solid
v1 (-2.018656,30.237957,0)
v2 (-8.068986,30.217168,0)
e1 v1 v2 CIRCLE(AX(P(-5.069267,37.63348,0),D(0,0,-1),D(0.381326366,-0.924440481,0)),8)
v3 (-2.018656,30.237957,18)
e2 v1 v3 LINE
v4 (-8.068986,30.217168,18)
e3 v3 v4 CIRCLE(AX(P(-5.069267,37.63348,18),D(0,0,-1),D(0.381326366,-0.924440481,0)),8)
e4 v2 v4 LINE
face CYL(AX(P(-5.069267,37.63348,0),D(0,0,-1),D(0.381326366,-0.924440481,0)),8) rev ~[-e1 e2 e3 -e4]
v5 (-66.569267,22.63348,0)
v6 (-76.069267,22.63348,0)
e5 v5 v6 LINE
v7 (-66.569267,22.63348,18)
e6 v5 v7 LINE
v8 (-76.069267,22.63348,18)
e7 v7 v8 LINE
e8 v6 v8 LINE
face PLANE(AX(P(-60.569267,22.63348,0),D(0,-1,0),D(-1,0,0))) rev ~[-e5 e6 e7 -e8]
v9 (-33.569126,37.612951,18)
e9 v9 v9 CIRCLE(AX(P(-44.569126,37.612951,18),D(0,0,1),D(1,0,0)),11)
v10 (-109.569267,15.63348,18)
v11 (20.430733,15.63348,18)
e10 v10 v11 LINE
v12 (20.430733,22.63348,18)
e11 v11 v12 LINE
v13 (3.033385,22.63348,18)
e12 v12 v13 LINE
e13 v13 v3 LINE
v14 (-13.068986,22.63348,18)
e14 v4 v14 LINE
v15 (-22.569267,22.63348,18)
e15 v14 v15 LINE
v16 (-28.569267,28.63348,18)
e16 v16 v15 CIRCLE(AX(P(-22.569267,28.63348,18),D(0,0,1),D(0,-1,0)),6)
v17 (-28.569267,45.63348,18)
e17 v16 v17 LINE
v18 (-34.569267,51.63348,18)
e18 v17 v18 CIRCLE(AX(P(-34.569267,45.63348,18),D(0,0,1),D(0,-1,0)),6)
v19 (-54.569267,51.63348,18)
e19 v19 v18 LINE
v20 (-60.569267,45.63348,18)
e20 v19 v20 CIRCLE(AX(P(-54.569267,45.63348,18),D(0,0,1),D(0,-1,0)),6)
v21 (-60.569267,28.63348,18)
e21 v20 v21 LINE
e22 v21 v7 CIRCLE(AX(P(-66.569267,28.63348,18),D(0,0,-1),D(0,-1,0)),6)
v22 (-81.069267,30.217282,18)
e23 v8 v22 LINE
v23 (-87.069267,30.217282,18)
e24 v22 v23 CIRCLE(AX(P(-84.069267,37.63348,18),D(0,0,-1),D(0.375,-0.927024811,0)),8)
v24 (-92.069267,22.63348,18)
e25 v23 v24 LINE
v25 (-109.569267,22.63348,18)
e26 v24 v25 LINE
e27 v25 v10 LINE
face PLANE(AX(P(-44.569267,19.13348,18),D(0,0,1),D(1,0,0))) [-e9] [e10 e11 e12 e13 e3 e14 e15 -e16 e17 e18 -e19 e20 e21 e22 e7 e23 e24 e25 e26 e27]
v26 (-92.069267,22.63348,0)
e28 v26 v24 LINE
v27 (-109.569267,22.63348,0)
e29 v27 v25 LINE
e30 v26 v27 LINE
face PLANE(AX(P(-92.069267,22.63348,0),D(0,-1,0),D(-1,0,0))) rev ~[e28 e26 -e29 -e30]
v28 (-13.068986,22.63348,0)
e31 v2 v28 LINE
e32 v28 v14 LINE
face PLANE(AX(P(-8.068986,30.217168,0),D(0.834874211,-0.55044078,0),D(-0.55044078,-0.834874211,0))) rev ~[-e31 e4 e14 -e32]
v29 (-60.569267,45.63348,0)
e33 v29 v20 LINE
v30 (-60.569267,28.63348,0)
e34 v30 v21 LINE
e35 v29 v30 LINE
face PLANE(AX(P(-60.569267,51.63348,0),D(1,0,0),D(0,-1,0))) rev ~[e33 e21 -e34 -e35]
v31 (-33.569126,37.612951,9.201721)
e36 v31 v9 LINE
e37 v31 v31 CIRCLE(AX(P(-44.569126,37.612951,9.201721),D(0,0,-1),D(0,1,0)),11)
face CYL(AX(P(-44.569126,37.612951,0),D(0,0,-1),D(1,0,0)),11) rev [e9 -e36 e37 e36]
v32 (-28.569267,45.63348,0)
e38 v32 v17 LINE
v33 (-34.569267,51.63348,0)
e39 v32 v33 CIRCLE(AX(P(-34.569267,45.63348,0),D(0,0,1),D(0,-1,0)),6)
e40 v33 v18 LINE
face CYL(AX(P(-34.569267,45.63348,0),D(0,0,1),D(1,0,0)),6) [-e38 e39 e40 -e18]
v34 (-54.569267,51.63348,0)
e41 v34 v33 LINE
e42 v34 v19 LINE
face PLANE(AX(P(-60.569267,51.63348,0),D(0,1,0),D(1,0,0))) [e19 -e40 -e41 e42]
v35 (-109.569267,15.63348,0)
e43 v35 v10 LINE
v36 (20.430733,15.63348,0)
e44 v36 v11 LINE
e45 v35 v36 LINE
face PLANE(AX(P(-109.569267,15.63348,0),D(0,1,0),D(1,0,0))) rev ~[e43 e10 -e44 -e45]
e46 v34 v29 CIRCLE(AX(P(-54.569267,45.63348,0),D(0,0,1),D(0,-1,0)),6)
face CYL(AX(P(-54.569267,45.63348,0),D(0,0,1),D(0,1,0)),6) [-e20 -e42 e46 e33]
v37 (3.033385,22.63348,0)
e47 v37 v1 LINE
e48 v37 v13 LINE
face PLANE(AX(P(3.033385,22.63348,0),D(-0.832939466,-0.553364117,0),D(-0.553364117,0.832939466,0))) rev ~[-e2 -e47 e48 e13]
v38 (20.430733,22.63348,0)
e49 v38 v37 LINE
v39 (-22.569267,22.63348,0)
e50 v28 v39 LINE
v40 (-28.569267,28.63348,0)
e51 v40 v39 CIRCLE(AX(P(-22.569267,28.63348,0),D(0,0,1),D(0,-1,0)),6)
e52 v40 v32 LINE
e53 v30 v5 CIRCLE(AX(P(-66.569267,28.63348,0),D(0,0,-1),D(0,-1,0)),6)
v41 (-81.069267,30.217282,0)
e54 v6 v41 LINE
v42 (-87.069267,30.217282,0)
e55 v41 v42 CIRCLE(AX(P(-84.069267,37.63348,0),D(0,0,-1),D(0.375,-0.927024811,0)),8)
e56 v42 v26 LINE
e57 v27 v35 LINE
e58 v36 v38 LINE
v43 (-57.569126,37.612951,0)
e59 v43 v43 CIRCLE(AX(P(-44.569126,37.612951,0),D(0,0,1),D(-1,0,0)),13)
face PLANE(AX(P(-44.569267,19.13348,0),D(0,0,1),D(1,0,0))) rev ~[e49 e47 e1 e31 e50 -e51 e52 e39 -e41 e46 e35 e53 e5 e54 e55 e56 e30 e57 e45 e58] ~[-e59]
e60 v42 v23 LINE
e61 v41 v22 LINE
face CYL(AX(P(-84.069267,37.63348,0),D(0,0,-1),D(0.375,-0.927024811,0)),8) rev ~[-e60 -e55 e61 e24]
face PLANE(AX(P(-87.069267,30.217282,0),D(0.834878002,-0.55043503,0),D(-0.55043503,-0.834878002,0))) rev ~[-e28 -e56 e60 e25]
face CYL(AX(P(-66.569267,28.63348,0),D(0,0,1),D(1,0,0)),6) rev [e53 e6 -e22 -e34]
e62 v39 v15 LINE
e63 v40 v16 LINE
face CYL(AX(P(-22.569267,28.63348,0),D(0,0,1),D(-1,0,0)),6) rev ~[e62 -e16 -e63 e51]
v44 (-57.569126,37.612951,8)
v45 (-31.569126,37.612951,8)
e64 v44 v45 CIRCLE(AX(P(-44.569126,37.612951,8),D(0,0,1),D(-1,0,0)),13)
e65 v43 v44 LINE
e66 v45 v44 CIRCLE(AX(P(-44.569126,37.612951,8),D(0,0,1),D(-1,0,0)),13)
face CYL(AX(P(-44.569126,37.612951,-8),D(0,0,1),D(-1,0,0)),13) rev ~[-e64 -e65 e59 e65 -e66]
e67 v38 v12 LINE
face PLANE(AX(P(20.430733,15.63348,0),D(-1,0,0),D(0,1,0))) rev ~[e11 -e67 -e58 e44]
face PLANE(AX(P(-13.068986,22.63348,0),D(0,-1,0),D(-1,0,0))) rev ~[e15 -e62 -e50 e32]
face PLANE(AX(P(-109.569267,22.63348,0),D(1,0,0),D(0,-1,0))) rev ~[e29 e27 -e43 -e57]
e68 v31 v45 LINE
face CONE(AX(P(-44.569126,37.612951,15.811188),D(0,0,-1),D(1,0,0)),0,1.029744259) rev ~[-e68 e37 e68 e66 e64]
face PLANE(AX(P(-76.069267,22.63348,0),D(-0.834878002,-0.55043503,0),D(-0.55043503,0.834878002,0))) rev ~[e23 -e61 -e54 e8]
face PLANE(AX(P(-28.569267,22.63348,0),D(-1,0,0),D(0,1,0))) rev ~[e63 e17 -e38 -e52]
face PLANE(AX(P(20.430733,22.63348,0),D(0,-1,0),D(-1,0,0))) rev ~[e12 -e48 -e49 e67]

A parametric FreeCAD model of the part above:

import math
import FreeCAD as App
import Part
import Sketcher


def edges_at(feature, points):
    """Names of the edges that pass closest to the given points."""
    edges = feature.Shape.Edges
    near = lambda p: min(range(len(edges)), key=lambda i: edges[i].distToShape(Part.Vertex(*p))[0])
    return sorted({f"Edge{near(p) + 1}" for p in points})

doc = App.newDocument("Part")
body = doc.addObject("PartDesign::Body", "Body")

sketch1 = body.newObject("Sketcher::SketchObject", "Sketch")
sketch1.AttachmentSupport = (doc.getObject("XY_Plane"), [""])
sketch1.MapMode = "FlatFace"
sketch1.addGeometry([
    Part.LineSegment(App.Vector(-28.569267, 22.63348, 0), App.Vector(-28.569267, 51.63348, 0)),
    Part.LineSegment(App.Vector(-28.569267, 51.63348, 0), App.Vector(-60.569267, 51.63348, 0)),
    Part.LineSegment(App.Vector(-60.569267, 51.63348, 0), App.Vector(-60.569267, 22.63348, 0)),
    Part.LineSegment(App.Vector(-60.569267, 22.63348, 0), App.Vector(-76.069267, 22.63348, 0)),
    Part.LineSegment(App.Vector(-76.069267, 22.63348, 0), App.Vector(-81.069267, 30.217282, 0)),
    Part.ArcOfCircle(Part.Circle(App.Vector(-84.069267, 37.63348, 0), App.Vector(0, 0, 1), 8), math.radians(-112.024313), math.radians(-67.975687)),
    Part.LineSegment(App.Vector(-87.069267, 30.217282, 0), App.Vector(-92.069267, 22.63348, 0)),
    Part.LineSegment(App.Vector(-92.069267, 22.63348, 0), App.Vector(-109.569267, 22.63348, 0)),
    Part.LineSegment(App.Vector(-109.569267, 22.63348, 0), App.Vector(-109.569267, 15.63348, 0)),
    Part.LineSegment(App.Vector(-109.569267, 15.63348, 0), App.Vector(20.430733, 15.63348, 0)),
    Part.LineSegment(App.Vector(20.430733, 15.63348, 0), App.Vector(20.430733, 22.63348, 0)),
    Part.LineSegment(App.Vector(20.430733, 22.63348, 0), App.Vector(3.033385, 22.63348, 0)),
    Part.LineSegment(App.Vector(3.033385, 22.63348, 0), App.Vector(-2.018656, 30.237957, 0)),
    Part.ArcOfCircle(Part.Circle(App.Vector(-5.069267, 37.63348, 0), App.Vector(0, 0, 1), 8), math.radians(-112.022142), math.radians(-67.584135)),
    Part.LineSegment(App.Vector(-8.068986, 30.217168, 0), App.Vector(-13.068986, 22.63348, 0)),
    Part.LineSegment(App.Vector(-13.068986, 22.63348, 0), App.Vector(-28.569267, 22.63348, 0)),
    Part.Circle(App.Vector(-44.569126, 37.612951, 0), App.Vector(0, 0, 1), 11),
], False)
sketch1.addConstraint([
    Sketcher.Constraint("Coincident", 0, 2, 1, 1),
    Sketcher.Constraint("Coincident", 1, 2, 2, 1),
    Sketcher.Constraint("Coincident", 2, 2, 3, 1),
    Sketcher.Constraint("Coincident", 3, 2, 4, 1),
    Sketcher.Constraint("Coincident", 4, 2, 5, 2),
    Sketcher.Constraint("Coincident", 5, 1, 6, 1),
    Sketcher.Constraint("Coincident", 6, 2, 7, 1),
    Sketcher.Constraint("Coincident", 7, 2, 8, 1),
    Sketcher.Constraint("Coincident", 8, 2, 9, 1),
    Sketcher.Constraint("Coincident", 9, 2, 10, 1),
    Sketcher.Constraint("Coincident", 10, 2, 11, 1),
    Sketcher.Constraint("Coincident", 11, 2, 12, 1),
    Sketcher.Constraint("Coincident", 12, 2, 13, 2),
    Sketcher.Constraint("Coincident", 13, 1, 14, 1),
    Sketcher.Constraint("Coincident", 14, 2, 15, 1),
    Sketcher.Constraint("Coincident", 15, 2, 0, 1),
    Sketcher.Constraint("Vertical", 0),
    Sketcher.Constraint("Horizontal", 1),
    Sketcher.Constraint("Vertical", 2),
    Sketcher.Constraint("Horizontal", 3),
    Sketcher.Constraint("Horizontal", 7),
    Sketcher.Constraint("Vertical", 8),
    Sketcher.Constraint("Horizontal", 9),
    Sketcher.Constraint("Vertical", 10),
    Sketcher.Constraint("Horizontal", 11),
    Sketcher.Constraint("Horizontal", 15),
    Sketcher.Constraint("Equal", 5, 13),
    Sketcher.Constraint("Horizontal", 5, 3, 13, 3),
    Sketcher.Constraint("Horizontal", 4, 2, 5, 1),
    Sketcher.Constraint("Horizontal", 3, 2, 6, 2),
    Sketcher.Constraint("Horizontal", 7, 2, 10, 2),
    Sketcher.Constraint("Horizontal", 11, 2, 14, 2),
    Sketcher.Constraint("Equal", 4, 6),
    Sketcher.Constraint("Diameter", 16, 22.0),
    Sketcher.Constraint("Radius", 5, 8.0),
    Sketcher.Constraint("DistanceX", 1, 2, 1, 1, 32.0),
    Sketcher.Constraint("DistanceX", 9, 1, 9, 2, 130.0),
    Sketcher.Constraint("DistanceY", 0, 1, 0, 2, 29.0),
    Sketcher.Constraint("DistanceY", 8, 2, 8, 1, 7.0),
    Sketcher.Constraint("DistanceX", 3, 2, 3, 1, 15.5),
    Sketcher.Constraint("DistanceX", 7, 2, 7, 1, 17.5),
    Sketcher.Constraint("DistanceX", 5, 3, 13, 3, 79.0),
    Sketcher.Constraint("DistanceY", 13, 3, 0, 2, 14.0),
    Sketcher.Constraint("DistanceX", 5, 3, 3, 2, 8.0),
    Sketcher.Constraint("DistanceX", 5, 3, 4, 2, 3.0),
    Sketcher.Constraint("DistanceX", 14, 2, 13, 1, 5.0),
    Sketcher.Constraint("DistanceX", 11, 2, 11, 1, 17.397348),
    Sketcher.Constraint("DistanceX", 15, 2, 15, 1, 15.500281),
    Sketcher.Constraint("DistanceY", -1, 1, 5, 3, 37.63348),
    Sketcher.Constraint("DistanceY", -1, 1, 16, 3, 37.612951),
    Sketcher.Constraint("DistanceX", 16, 3, 13, 3, 39.49986),
    Sketcher.Constraint("DistanceX", 13, 3, 12, 2, 3.050611),
    Sketcher.Constraint("DistanceX", 5, 3, -1, 1, 84.069267),
])
pad1 = body.newObject("PartDesign::Pad", "Pad")
pad1.Profile = sketch1
pad1.Length = 18

sketch2 = body.newObject("Sketcher::SketchObject", "Sketch001")
sketch2.AttachmentSupport = (doc.getObject("XY_Plane"), [""])
sketch2.MapMode = "FlatFace"
sketch2.addGeometry(Part.Circle(App.Vector(-44.569126, 37.612951, 0), App.Vector(0, 0, 1), 13), False)
sketch2.addConstraint([
    Sketcher.Constraint("Diameter", 0, 26.0),
    Sketcher.Constraint("DistanceY", -1, 1, 0, 3, 37.612951),
    Sketcher.Constraint("DistanceX", 0, 3, -1, 1, 44.569126),
])
doc.recompute()
hole = body.newObject("PartDesign::Hole", "Hole")
hole.Profile = sketch2
hole.ThreadType = "None"
hole.Diameter = 26
hole.DepthType = "Dimension"
hole.Depth = 8
hole.DrillPoint = "Angled"
hole.DrillPointAngle = 118
hole.Reversed = True
doc.recompute()

fillet = body.newObject("PartDesign::Fillet", "Fillet")
fillet.Base = (hole, edges_at(hole, [
    (-60.569, 22.633, 9),
    (-28.569, 22.633, 9),
    (-60.569, 51.633, 9),
    (-28.569, 51.633, 9),
]))
fillet.Radius = 6

doc.recompute()
